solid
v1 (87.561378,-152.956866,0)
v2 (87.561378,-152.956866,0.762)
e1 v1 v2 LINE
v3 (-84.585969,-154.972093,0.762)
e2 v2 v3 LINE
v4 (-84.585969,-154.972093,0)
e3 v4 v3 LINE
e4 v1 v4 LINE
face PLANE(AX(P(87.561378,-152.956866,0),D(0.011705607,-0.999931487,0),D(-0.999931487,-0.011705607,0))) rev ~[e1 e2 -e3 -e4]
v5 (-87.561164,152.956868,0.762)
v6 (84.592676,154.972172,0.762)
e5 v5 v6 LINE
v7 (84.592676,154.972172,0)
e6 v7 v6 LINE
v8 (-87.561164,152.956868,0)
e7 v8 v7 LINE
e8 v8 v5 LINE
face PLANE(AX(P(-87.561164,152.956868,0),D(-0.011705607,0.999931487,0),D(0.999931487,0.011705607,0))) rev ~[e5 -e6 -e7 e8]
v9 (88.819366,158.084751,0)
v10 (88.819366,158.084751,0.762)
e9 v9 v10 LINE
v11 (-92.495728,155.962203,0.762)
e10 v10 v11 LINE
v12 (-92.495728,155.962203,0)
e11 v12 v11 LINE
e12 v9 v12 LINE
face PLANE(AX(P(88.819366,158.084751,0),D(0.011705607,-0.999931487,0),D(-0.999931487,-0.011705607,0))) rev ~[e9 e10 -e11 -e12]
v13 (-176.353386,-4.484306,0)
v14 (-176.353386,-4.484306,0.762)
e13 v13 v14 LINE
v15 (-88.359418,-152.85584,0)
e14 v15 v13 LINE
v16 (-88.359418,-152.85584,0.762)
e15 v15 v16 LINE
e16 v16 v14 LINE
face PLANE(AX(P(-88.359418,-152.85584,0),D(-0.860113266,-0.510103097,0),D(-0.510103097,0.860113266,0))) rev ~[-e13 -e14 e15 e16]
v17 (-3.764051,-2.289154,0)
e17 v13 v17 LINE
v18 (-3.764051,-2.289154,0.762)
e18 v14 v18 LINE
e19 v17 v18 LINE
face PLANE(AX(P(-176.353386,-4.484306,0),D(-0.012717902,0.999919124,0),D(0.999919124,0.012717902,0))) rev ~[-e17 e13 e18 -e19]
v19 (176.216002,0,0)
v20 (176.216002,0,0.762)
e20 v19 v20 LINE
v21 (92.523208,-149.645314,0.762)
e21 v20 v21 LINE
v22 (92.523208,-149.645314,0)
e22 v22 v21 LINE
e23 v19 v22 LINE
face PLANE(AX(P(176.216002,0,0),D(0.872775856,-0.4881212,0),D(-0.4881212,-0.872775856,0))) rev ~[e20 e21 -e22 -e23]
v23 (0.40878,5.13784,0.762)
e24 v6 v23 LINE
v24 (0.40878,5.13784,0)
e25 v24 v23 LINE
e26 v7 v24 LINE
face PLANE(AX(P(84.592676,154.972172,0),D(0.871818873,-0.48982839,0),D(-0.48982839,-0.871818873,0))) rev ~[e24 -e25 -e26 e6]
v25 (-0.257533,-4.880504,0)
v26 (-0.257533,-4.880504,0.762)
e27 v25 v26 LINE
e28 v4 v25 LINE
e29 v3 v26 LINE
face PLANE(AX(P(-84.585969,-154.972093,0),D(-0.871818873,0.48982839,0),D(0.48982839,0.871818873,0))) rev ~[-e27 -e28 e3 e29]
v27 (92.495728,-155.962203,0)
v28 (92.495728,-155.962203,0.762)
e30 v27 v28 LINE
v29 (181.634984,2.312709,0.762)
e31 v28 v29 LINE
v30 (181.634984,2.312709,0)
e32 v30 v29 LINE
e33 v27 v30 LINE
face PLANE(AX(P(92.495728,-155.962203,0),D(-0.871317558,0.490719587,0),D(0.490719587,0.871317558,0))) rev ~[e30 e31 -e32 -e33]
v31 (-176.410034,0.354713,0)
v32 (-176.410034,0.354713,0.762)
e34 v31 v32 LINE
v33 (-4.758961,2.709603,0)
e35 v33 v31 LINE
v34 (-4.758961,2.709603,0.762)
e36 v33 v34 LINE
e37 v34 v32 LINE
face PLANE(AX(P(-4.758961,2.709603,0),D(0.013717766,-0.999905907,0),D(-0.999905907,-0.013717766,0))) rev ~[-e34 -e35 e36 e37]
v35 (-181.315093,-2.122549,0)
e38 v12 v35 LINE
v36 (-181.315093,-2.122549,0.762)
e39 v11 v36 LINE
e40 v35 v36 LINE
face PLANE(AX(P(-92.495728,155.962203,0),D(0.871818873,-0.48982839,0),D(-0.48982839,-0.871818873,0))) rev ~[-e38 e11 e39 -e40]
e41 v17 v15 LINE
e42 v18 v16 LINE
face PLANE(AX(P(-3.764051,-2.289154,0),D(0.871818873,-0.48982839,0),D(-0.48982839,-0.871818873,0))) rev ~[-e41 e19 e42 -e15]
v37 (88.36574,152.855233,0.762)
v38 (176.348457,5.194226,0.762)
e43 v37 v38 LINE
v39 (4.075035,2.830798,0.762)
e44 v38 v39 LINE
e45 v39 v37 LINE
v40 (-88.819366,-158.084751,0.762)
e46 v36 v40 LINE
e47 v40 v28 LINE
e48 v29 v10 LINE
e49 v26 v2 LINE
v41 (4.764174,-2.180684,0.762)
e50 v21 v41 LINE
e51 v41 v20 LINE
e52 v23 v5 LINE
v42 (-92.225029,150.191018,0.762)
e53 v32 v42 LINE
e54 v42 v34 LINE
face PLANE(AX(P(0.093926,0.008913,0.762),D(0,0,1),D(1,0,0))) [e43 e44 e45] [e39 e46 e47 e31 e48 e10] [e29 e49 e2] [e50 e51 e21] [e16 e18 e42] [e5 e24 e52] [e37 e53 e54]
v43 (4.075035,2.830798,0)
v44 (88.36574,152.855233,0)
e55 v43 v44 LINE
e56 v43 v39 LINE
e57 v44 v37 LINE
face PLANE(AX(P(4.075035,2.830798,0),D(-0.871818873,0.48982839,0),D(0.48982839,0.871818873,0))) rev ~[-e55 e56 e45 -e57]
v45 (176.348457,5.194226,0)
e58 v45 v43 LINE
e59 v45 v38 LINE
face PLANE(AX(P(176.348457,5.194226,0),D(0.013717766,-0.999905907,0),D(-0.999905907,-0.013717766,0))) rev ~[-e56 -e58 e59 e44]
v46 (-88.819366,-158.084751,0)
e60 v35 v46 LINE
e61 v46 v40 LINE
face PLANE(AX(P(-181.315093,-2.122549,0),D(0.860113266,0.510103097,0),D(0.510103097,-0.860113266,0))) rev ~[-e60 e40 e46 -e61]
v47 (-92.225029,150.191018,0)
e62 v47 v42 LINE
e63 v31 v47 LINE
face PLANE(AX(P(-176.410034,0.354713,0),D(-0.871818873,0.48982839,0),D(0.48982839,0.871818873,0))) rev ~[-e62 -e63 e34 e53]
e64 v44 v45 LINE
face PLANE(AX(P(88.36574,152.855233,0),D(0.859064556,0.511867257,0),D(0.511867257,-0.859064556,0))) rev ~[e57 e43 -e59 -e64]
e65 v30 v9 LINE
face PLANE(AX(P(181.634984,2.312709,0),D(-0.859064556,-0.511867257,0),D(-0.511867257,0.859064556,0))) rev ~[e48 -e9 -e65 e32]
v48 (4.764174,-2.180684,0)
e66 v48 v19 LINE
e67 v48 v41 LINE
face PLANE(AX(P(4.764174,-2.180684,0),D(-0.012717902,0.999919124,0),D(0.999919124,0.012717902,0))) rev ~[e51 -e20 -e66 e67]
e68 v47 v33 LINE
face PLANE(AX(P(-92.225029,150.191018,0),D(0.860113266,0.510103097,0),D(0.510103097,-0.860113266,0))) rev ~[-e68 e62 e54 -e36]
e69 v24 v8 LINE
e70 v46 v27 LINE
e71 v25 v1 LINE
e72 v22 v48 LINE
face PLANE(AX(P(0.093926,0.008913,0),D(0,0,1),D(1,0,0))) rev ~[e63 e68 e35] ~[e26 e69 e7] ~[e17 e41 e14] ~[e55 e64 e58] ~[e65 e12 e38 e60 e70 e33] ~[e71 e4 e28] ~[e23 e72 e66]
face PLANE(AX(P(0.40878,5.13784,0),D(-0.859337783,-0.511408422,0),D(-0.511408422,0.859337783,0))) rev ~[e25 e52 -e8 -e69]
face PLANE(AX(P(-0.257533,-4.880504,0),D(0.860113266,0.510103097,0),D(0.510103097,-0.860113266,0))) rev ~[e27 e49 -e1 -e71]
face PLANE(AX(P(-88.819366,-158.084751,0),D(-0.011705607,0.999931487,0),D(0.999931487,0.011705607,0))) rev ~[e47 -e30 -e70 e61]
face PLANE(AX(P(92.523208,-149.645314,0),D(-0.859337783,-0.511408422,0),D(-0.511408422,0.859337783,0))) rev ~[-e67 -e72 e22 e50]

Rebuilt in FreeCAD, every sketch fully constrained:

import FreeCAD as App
import Part
import Sketcher

V = App.Vector
Q = App.Units.Quantity


def add_polygon(sketch, points):
    """Adds a closed chain of lines whose ends are joined by coincident constraints."""
    first, n = sketch.GeometryCount, len(points)
    for a, b in zip(points, points[1:] + points[:1]):
        sketch.addGeometry(Part.LineSegment(App.Vector(*a, 0), App.Vector(*b, 0)), False)
    for i in range(n):
        sketch.addConstraint(Sketcher.Constraint("Coincident", first + i, 2, first + (i + 1) % n, 1))

doc = App.newDocument("Part")
body = doc.addObject("PartDesign::Body", "Body")

# Sketch on XY plane
sketch1 = doc.addObject("Sketcher::SketchObject", "Sketch")
body.addObject(sketch1)
sketch1.AttachmentSupport = (doc.XY_Plane, [""])
sketch1.MapMode = "FlatFace"
add_polygon(sketch1, [(182, 2), (89, 158), (-92, 156), (-181, -2), (-89, -158), (92, -156)])  # lines 0-5
add_polygon(sketch1, [(-88, -153), (-176, -4), (-4, -2)])  # lines 6-8
add_polygon(sketch1, [(-176, 0), (-92, 150), (-5, 3)])  # lines 9-11
add_polygon(sketch1, [(-88, 153), (85, 155), (0, 5)])  # lines 12-14
add_polygon(sketch1, [(88, 153), (176, 5), (4, 3)])  # lines 15-17
add_polygon(sketch1, [(176, 0), (93, -150), (5, -2)])  # lines 18-20
add_polygon(sketch1, [(0, -5), (88, -153), (-85, -155)])  # lines 21-23
sketch1.addConstraint([
    Sketcher.Constraint("Symmetric", 0, 2, 3, 2, -1, 1),
    Sketcher.Constraint("Symmetric", 1, 2, 4, 2, -1, 1),
    Sketcher.Constraint("PointOnObject", 20, 2, -1),
    Sketcher.Constraint("Parallel", 3, 6),
    Sketcher.Constraint("Parallel", 2, 8),
    Sketcher.Constraint("Parallel", 8, 9),
    Sketcher.Constraint("Parallel", 6, 10),
    Sketcher.Constraint("Parallel", 4, 12),
    Sketcher.Constraint("Parallel", 9, 13),
    Sketcher.Constraint("Parallel", 0, 15),
    Sketcher.Constraint("Parallel", 11, 16),
    Sketcher.Constraint("Parallel", 13, 17),
    Sketcher.Constraint("Parallel", 14, 19),
    Sketcher.Constraint("Parallel", 7, 20),
    Sketcher.Constraint("Parallel", 10, 21),
    Sketcher.Constraint("Parallel", 12, 22),
    Sketcher.Constraint("Parallel", 17, 23),
    Sketcher.Constraint("Equal", 0, 1),
    Sketcher.Constraint("Equal", 1, 2),
    Sketcher.Constraint("Equal", 2, 3),
    Sketcher.Constraint("Equal", 21, 22),
    Sketcher.Constraint("Equal", 22, 23),
    Sketcher.Constraint("DistanceY", 10, 2, 13, 2, Q("0.0955999 in")),
    Sketcher.Constraint("DistanceX", -1, 1, 20, 2, 176.216002),
    Sketcher.Constraint("DistanceY", 2, 2, 0, 2, 160.2073),
    Sketcher.Constraint("DistanceX", 1, 2, 9, 2, 0.270698),
    Sketcher.Constraint("DistanceY", 10, 2, 1, 2, 153.252599),
    Sketcher.Constraint("DistanceY", 23, 2, 16, 2, 7.711302),
    Sketcher.Constraint("Distance", 5, 181.650088),
    Sketcher.Constraint("Distance", 6, 172.502321),
    Sketcher.Constraint("Distance", 8, 172.704092),
    Sketcher.Constraint("Distance", 13, 171.86406),
    Sketcher.Constraint("Distance", 15, 171.885809),
    Sketcher.Constraint("Distance", 21, 172.159142),
    Sketcher.Constraint("DistanceY", -1, 1, 0, 2, 158.084751),
    Sketcher.Constraint("DistanceX", 7, 2, -1, 1, 3.764051),
    Sketcher.Constraint("DistanceY", 8, 2, -1, 1, 152.85584),
    Sketcher.Constraint("DistanceX", 10, 2, -1, 1, 4.758961),
    Sketcher.Constraint("DistanceX", -1, 1, 13, 2, 0.40878),
    Sketcher.Constraint("DistanceY", -1, 1, 14, 2, 152.956868),
    Sketcher.Constraint("DistanceX", -1, 1, 17, 2, 88.36574),
    Sketcher.Constraint("DistanceX", -1, 1, 21, 2, 87.561378),
    Sketcher.Constraint("DistanceY", 6, 2, 11, 2, 4.839018),
    Sketcher.Constraint("DistanceY", 7, 2, 15, 2, 7.48338),
    Sketcher.Constraint("DistanceX", 4, 2, 18, 2, 0.02748),
    Sketcher.Constraint("DistanceY", 4, 2, 18, 2, 6.316889),
])
pad1 = doc.addObject("PartDesign::Pad", "Pad")
body.addObject(pad1)
pad1.Profile = sketch1
pad1.Length = Q("0.03 in")

doc.recompute()
